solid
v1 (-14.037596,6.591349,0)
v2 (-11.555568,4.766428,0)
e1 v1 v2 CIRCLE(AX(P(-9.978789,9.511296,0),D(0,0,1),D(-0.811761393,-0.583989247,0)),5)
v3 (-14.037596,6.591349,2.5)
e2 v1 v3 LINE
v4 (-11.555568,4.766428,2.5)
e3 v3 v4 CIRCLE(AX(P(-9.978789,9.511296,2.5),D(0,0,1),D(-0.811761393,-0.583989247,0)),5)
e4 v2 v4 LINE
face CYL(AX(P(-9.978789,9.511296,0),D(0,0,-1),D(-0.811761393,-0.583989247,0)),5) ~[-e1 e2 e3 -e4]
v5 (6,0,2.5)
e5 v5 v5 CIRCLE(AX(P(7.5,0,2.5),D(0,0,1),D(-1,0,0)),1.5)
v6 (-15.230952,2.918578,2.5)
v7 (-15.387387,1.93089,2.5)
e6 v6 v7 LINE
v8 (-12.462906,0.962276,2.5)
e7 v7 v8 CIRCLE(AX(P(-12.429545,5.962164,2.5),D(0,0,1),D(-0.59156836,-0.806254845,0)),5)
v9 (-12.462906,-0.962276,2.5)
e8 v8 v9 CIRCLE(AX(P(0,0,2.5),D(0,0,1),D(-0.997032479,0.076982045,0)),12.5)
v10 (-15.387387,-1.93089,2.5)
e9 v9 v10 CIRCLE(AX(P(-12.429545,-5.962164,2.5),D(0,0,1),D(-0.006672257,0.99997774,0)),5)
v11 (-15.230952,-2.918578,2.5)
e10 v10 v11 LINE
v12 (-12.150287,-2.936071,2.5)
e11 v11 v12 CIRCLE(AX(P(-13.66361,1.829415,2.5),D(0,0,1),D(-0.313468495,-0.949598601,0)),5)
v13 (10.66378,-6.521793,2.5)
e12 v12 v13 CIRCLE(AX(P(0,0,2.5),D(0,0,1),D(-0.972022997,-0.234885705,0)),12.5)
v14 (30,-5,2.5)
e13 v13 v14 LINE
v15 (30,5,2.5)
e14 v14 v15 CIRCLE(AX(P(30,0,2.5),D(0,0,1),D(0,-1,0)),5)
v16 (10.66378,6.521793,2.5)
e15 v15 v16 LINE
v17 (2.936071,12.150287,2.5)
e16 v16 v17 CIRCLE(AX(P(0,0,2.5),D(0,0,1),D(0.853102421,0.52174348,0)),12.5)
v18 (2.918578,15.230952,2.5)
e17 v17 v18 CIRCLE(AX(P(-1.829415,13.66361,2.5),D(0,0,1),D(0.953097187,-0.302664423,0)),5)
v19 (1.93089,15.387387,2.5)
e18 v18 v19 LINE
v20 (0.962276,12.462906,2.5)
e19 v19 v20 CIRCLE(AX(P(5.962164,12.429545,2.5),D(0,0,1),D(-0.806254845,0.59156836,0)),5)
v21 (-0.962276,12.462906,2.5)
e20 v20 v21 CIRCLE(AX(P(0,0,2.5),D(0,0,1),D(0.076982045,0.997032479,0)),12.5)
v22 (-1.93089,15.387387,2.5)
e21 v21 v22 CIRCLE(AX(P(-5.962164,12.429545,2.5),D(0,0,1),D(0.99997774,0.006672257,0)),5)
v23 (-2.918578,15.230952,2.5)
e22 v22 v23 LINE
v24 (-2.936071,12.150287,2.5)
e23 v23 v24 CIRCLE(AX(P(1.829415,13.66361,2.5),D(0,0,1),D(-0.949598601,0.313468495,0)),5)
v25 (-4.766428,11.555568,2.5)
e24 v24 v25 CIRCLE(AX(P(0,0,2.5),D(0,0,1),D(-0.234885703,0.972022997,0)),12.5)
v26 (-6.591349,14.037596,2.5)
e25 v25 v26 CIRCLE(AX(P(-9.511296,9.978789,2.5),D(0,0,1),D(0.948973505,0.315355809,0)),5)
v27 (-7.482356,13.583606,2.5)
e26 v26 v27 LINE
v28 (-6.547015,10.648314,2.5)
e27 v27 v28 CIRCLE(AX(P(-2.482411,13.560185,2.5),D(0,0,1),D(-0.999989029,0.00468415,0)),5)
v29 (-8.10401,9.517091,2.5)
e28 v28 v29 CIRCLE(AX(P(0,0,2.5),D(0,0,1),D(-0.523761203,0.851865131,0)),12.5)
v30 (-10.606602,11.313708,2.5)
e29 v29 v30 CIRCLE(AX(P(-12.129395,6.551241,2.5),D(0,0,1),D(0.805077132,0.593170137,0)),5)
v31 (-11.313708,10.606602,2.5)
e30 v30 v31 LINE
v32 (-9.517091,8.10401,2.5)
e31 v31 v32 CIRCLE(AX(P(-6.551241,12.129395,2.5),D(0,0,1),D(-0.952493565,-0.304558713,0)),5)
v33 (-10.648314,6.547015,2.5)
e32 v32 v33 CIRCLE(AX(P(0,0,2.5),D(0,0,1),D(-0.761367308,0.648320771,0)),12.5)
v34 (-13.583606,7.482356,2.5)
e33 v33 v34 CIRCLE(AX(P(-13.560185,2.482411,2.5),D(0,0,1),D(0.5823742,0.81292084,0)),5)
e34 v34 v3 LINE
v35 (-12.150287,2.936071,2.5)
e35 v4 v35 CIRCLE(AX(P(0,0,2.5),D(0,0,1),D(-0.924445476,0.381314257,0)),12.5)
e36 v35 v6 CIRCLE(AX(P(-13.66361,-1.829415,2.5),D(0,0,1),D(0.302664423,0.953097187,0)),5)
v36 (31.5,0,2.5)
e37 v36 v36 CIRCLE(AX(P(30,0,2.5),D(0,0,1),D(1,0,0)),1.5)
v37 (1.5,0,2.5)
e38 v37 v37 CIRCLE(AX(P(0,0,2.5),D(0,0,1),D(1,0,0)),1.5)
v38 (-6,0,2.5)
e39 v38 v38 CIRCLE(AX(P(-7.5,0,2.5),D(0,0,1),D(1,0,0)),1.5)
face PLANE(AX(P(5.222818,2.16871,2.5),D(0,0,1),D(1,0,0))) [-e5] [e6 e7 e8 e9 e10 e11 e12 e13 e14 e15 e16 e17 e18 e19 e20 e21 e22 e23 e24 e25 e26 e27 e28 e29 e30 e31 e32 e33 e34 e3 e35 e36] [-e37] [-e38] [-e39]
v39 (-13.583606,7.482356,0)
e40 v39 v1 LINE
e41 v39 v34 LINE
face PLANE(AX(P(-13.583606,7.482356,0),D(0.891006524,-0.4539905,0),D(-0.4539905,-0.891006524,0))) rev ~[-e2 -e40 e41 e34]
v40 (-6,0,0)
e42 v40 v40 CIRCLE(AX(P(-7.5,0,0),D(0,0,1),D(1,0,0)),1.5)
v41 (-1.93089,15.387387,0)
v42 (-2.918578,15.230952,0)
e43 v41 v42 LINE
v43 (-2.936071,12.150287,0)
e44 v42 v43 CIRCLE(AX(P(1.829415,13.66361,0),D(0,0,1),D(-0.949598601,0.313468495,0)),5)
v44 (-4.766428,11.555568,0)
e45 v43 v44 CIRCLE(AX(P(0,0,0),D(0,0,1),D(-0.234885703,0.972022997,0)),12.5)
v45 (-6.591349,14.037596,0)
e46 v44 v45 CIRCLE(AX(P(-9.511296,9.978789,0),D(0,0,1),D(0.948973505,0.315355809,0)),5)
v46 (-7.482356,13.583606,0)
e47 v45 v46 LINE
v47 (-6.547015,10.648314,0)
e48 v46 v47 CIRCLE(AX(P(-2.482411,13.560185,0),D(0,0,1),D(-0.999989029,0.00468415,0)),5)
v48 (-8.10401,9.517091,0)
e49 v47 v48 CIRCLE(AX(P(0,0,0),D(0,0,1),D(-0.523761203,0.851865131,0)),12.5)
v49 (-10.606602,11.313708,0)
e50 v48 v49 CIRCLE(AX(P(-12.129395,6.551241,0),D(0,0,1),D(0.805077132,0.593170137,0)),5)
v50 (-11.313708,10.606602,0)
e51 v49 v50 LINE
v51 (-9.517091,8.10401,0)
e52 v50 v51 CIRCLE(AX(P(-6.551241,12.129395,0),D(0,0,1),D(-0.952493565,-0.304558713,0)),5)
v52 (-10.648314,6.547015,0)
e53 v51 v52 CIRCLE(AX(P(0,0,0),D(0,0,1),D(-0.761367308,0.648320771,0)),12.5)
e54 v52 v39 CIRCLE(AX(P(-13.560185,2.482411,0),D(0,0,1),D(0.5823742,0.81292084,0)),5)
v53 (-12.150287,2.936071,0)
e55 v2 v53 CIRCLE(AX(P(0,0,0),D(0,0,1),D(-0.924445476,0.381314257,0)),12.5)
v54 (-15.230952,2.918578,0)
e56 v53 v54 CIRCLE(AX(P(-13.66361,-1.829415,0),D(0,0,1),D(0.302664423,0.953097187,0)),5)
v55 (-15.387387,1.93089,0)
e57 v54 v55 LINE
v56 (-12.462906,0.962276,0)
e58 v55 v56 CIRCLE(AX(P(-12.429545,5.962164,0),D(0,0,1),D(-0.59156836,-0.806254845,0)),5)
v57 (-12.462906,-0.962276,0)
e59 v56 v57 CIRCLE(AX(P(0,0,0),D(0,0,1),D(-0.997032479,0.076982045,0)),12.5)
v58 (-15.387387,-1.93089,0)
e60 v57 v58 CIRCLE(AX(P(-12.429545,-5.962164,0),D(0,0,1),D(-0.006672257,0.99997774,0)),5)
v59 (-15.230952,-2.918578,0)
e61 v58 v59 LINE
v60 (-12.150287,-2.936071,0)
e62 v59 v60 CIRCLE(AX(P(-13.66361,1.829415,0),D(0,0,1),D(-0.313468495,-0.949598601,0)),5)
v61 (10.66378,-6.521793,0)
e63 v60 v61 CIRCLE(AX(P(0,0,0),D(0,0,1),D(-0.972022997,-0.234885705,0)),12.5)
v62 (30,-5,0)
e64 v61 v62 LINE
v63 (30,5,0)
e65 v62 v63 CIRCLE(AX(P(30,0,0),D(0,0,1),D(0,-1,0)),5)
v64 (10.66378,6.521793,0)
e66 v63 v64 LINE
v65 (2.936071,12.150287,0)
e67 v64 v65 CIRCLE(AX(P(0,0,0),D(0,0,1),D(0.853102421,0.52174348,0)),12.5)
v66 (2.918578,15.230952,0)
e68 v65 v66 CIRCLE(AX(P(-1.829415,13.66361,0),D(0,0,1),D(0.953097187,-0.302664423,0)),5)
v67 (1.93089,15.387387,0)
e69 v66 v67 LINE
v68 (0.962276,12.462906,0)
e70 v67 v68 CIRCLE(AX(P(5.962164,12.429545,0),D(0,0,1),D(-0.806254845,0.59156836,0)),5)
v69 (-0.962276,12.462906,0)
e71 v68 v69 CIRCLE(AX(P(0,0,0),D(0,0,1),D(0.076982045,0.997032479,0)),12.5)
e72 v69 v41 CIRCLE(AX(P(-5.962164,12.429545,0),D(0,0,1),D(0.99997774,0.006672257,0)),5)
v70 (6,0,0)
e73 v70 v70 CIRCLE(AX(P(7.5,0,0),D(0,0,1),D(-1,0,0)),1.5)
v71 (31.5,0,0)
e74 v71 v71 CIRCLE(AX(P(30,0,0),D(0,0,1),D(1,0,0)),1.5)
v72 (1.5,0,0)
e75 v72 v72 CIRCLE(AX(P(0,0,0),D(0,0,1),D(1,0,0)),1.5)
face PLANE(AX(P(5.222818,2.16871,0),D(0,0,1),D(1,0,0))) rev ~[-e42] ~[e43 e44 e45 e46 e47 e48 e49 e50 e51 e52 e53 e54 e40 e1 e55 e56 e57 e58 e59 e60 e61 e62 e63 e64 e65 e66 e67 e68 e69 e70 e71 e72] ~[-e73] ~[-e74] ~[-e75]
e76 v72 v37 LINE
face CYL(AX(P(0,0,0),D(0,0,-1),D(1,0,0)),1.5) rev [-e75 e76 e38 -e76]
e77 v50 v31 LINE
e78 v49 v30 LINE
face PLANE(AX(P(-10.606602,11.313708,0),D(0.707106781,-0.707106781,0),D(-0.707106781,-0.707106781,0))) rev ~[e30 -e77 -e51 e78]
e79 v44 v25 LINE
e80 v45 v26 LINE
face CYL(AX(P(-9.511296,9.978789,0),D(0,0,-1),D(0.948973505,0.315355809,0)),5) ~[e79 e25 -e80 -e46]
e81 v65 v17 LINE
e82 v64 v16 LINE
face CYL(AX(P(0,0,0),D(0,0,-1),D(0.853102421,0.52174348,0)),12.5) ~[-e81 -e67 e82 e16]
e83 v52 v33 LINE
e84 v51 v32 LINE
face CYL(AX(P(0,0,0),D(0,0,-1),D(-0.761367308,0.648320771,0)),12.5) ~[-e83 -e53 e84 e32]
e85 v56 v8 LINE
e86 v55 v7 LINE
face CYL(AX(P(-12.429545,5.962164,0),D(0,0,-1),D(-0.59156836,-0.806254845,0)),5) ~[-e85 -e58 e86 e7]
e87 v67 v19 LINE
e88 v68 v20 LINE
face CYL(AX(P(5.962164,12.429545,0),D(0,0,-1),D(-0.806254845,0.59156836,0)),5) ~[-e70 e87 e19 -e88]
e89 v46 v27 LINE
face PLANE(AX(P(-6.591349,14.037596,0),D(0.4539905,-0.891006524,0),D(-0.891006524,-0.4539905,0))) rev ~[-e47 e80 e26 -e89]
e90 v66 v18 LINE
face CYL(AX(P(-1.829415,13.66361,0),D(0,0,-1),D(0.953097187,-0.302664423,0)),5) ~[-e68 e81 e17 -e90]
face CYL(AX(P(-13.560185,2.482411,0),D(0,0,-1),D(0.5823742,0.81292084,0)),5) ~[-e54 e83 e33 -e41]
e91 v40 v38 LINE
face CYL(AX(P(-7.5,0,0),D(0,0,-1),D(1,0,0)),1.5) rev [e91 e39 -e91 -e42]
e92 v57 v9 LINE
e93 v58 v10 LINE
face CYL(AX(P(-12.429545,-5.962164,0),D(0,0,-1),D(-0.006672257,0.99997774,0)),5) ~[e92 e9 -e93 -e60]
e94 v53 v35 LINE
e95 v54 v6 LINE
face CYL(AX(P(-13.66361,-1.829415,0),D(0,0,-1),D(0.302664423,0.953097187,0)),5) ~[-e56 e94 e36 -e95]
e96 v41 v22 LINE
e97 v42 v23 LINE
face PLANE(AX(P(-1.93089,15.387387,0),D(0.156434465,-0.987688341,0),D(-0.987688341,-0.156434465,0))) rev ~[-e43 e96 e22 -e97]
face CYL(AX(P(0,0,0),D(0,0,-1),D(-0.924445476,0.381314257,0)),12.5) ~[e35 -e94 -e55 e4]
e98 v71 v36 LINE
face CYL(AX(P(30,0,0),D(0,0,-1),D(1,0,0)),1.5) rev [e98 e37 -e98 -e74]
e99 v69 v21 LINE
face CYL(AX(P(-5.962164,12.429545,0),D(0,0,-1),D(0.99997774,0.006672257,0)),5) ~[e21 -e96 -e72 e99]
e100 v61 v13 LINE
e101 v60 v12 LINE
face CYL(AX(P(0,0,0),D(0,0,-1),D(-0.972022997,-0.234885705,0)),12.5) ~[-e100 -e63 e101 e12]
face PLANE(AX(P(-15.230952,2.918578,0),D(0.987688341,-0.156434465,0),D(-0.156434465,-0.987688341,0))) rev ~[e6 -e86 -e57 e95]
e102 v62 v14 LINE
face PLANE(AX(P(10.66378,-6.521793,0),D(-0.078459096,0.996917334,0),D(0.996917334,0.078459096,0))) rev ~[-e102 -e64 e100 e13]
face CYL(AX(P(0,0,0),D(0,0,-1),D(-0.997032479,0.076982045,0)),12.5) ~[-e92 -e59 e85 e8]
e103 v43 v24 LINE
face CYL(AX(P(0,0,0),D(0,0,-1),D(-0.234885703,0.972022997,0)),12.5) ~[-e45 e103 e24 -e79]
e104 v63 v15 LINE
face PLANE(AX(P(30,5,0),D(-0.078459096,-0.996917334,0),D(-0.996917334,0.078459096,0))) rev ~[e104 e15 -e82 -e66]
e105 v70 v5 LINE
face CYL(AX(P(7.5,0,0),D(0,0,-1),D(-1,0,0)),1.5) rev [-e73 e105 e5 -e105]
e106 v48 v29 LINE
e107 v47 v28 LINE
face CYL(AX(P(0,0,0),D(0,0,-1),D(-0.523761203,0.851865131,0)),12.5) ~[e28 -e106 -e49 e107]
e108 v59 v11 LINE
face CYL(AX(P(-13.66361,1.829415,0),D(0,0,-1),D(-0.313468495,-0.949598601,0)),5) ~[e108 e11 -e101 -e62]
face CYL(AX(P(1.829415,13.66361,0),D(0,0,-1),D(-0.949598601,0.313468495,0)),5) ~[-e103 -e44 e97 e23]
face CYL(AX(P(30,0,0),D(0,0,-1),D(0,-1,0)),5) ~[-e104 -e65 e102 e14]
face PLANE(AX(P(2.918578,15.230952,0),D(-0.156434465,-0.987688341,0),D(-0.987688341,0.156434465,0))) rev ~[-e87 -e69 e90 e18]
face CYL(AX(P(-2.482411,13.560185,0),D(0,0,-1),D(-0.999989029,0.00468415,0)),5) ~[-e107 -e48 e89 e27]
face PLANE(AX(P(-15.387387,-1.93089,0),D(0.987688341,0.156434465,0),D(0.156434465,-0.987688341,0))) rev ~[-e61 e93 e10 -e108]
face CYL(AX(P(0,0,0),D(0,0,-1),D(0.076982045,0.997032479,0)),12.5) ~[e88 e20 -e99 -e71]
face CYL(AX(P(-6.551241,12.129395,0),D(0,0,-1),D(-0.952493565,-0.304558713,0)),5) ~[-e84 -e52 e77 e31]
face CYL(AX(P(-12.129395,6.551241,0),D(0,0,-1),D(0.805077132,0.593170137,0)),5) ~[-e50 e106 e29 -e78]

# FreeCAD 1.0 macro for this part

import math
import FreeCAD as App
import Part
import Sketcher
from FreeCAD import Vector
Q = App.Units.Quantity

doc = App.newDocument("Part")
body = doc.addObject("PartDesign::Body", "Body")

# Sketch on XY plane
sketch1 = body.newObject("Sketcher::SketchObject", "Sketch")
sketch1.AttachmentSupport = (doc.getObject("XY_Plane"), [""])
sketch1.MapMode = "FlatFace"
sketch1.addGeometry([
    Part.LineSegment(Vector(30, 5, 0), Vector(10.7, 6.5, 0)),  # 0
    Part.ArcOfCircle(Part.Circle(Vector(0, 0, 0), Vector(0, 0, 1), 12.5), math.radians(31), math.radians(76)),  # 1
    Part.ArcOfCircle(Part.Circle(Vector(-1.8, 13.7, 0), Vector(0, 0, 1), 5), math.radians(-18), math.radians(18)),  # 2
    Part.LineSegment(Vector(2.9, 15.2, 0), Vector(1.9, 15.4, 0)),  # 3
    Part.ArcOfCircle(Part.Circle(Vector(6, 12.4, 0), Vector(0, 0, 1), 5), math.radians(144), math.radians(180)),  # 4
    Part.ArcOfCircle(Part.Circle(Vector(0, 0, 0), Vector(0, 0, 1), 12.5), math.radians(85.58), math.radians(94.42)),  # 5
    Part.ArcOfCircle(Part.Circle(Vector(-6, 12.4, 0), Vector(0, 0, 1), 5), math.radians(0), math.radians(36)),  # 6
    Part.LineSegment(Vector(-1.9, 15.4, 0), Vector(-2.9, 15.2, 0)),  # 7
    Part.ArcOfCircle(Part.Circle(Vector(1.8, 13.7, 0), Vector(0, 0, 1), 5), math.radians(162), math.radians(198)),  # 8
    Part.ArcOfCircle(Part.Circle(Vector(0, 0, 0), Vector(0, 0, 1), 12.5), math.radians(103.58), math.radians(112.42)),  # 9
    Part.ArcOfCircle(Part.Circle(Vector(-9.5, 10, 0), Vector(0, 0, 1), 5), math.radians(18), math.radians(54)),  # 10
    Part.LineSegment(Vector(-6.6, 14, 0), Vector(-7.5, 13.6, 0)),  # 11
    Part.ArcOfCircle(Part.Circle(Vector(-2.5, 13.6, 0), Vector(0, 0, 1), 5), math.radians(180), math.radians(216)),  # 12
    Part.ArcOfCircle(Part.Circle(Vector(0, 0, 0), Vector(0, 0, 1), 12.5), math.radians(121.58), math.radians(130.42)),  # 13
    Part.ArcOfCircle(Part.Circle(Vector(-12.1, 6.6, 0), Vector(0, 0, 1), 5), math.radians(36), math.radians(72)),  # 14
    Part.LineSegment(Vector(-10.6, 11.3, 0), Vector(-11.3, 10.6, 0)),  # 15
    Part.ArcOfCircle(Part.Circle(Vector(-6.6, 12.1, 0), Vector(0, 0, 1), 5), math.radians(-162), math.radians(-126)),  # 16
    Part.ArcOfCircle(Part.Circle(Vector(0, 0, 0), Vector(0, 0, 1), 12.5), math.radians(139.58), math.radians(148.42)),  # 17
    Part.ArcOfCircle(Part.Circle(Vector(-13.6, 2.5, 0), Vector(0, 0, 1), 5), math.radians(54), math.radians(90)),  # 18
    Part.LineSegment(Vector(-13.6, 7.5, 0), Vector(-14, 6.6, 0)),  # 19
    Part.ArcOfCircle(Part.Circle(Vector(-10, 9.5, 0), Vector(0, 0, 1), 5), math.radians(-144), math.radians(-108)),  # 20
    Part.ArcOfCircle(Part.Circle(Vector(0, 0, 0), Vector(0, 0, 1), 12.5), math.radians(157.58), math.radians(166.42)),  # 21
    Part.ArcOfCircle(Part.Circle(Vector(-13.7, -1.8, 0), Vector(0, 0, 1), 5), math.radians(72), math.radians(108)),  # 22
    Part.LineSegment(Vector(-15.2, 2.9, 0), Vector(-15.4, 1.9, 0)),  # 23
    Part.ArcOfCircle(Part.Circle(Vector(-12.4, 6, 0), Vector(0, 0, 1), 5), math.radians(-126), math.radians(-90)),  # 24
    Part.ArcOfCircle(Part.Circle(Vector(0, 0, 0), Vector(0, 0, 1), 12.5), math.radians(175.58), math.radians(184.42)),  # 25
    Part.ArcOfCircle(Part.Circle(Vector(-12.4, -6, 0), Vector(0, 0, 1), 5), math.radians(90), math.radians(126)),  # 26
    Part.LineSegment(Vector(-15.4, -1.9, 0), Vector(-15.2, -2.9, 0)),  # 27
    Part.ArcOfCircle(Part.Circle(Vector(-13.7, 1.8, 0), Vector(0, 0, 1), 5), math.radians(-108), math.radians(-72)),  # 28
    Part.ArcOfCircle(Part.Circle(Vector(0, 0, 0), Vector(0, 0, 1), 12.5), math.radians(-166), math.radians(-31)),  # 29
    Part.LineSegment(Vector(10.7, -6.5, 0), Vector(30, -5, 0)),  # 30
    Part.ArcOfCircle(Part.Circle(Vector(30, 0, 0), Vector(0, 0, 1), 5), math.radians(-90), math.radians(90)),  # 31
    Part.Circle(Vector(-7.5, 0, 0), Vector(0, 0, 1), 1.5),  # 32
    Part.Circle(Vector(0, 0, 0), Vector(0, 0, 1), 1.5),  # 33
    Part.Circle(Vector(7.5, 0, 0), Vector(0, 0, 1), 1.5),  # 34
    Part.Circle(Vector(30, 0, 0), Vector(0, 0, 1), 1.5),  # 35
], False)
sketch1.addConstraint([
    Sketcher.Constraint("Coincident", 0, 2, 1, 1),
    Sketcher.Constraint("Coincident", 1, 2, 2, 1),
    Sketcher.Constraint("Coincident", 2, 2, 3, 1),
    Sketcher.Constraint("Coincident", 3, 2, 4, 1),
    Sketcher.Constraint("Coincident", 4, 2, 5, 1),
    Sketcher.Constraint("Coincident", 5, 2, 6, 1),
    Sketcher.Constraint("Coincident", 6, 2, 7, 1),
    Sketcher.Constraint("Coincident", 7, 2, 8, 1),
    Sketcher.Constraint("Coincident", 8, 2, 9, 1),
    Sketcher.Constraint("Coincident", 9, 2, 10, 1),
    Sketcher.Constraint("Coincident", 10, 2, 11, 1),
    Sketcher.Constraint("Coincident", 11, 2, 12, 1),
    Sketcher.Constraint("Coincident", 12, 2, 13, 1),
    Sketcher.Constraint("Coincident", 13, 2, 14, 1),
    Sketcher.Constraint("Coincident", 14, 2, 15, 1),
    Sketcher.Constraint("Coincident", 15, 2, 16, 1),
    Sketcher.Constraint("Coincident", 16, 2, 17, 1),
    Sketcher.Constraint("Coincident", 17, 2, 18, 1),
    Sketcher.Constraint("Coincident", 18, 2, 19, 1),
    Sketcher.Constraint("Coincident", 19, 2, 20, 1),
    Sketcher.Constraint("Coincident", 20, 2, 21, 1),
    Sketcher.Constraint("Coincident", 21, 2, 22, 1),
    Sketcher.Constraint("Coincident", 22, 2, 23, 1),
    Sketcher.Constraint("Coincident", 23, 2, 24, 1),
    Sketcher.Constraint("Coincident", 24, 2, 25, 1),
    Sketcher.Constraint("Coincident", 25, 2, 26, 1),
    Sketcher.Constraint("Coincident", 26, 2, 27, 1),
    Sketcher.Constraint("Coincident", 27, 2, 28, 1),
    Sketcher.Constraint("Coincident", 28, 2, 29, 1),
    Sketcher.Constraint("Coincident", 29, 2, 30, 1),
    Sketcher.Constraint("Coincident", 30, 2, 31, 1),
    Sketcher.Constraint("Coincident", 31, 2, 0, 1),
    Sketcher.Constraint("Coincident", 1, 3, -1, 1),
    Sketcher.Constraint("Coincident", 5, 3, -1, 1),
    Sketcher.Constraint("Coincident", 9, 3, -1, 1),
    Sketcher.Constraint("Coincident", 13, 3, -1, 1),
    Sketcher.Constraint("Coincident", 17, 3, -1, 1),
    Sketcher.Constraint("Coincident", 21, 3, -1, 1),
    Sketcher.Constraint("Coincident", 25, 3, -1, 1),
    Sketcher.Constraint("Coincident", 29, 3, -1, 1),
    Sketcher.Constraint("Coincident", 33, 3, -1, 1),
    Sketcher.Constraint("Coincident", 35, 3, 31, 3),
    Sketcher.Constraint("Equal", 2, 4),
    Sketcher.Constraint("Equal", 1, 5),
    Sketcher.Constraint("Equal", 4, 6),
    Sketcher.Constraint("Equal", 6, 8),
    Sketcher.Constraint("Equal", 5, 9),
    Sketcher.Constraint("Equal", 8, 10),
    Sketcher.Constraint("Equal", 10, 12),
    Sketcher.Constraint("Equal", 9, 13),
    Sketcher.Constraint("Equal", 12, 14),
    Sketcher.Constraint("Equal", 14, 16),
    Sketcher.Constraint("Equal", 13, 17),
    Sketcher.Constraint("Equal", 16, 18),
    Sketcher.Constraint("Equal", 18, 20),
    Sketcher.Constraint("Equal", 17, 21),
    Sketcher.Constraint("Equal", 20, 22),
    Sketcher.Constraint("Equal", 22, 24),
    Sketcher.Constraint("Equal", 21, 25),
    Sketcher.Constraint("Equal", 24, 26),
    Sketcher.Constraint("Equal", 26, 28),
    Sketcher.Constraint("Equal", 25, 29),
    Sketcher.Constraint("Equal", 28, 31),
    Sketcher.Constraint("Equal", 32, 33),
    Sketcher.Constraint("Equal", 33, 34),
    Sketcher.Constraint("Equal", 34, 35),
    Sketcher.Constraint("Symmetric", 32, 3, 34, 3, -1, 1),
    Sketcher.Constraint("Symmetric", 4, 3, 6, 3, -2),
    Sketcher.Constraint("Symmetric", 2, 3, 8, 3, -2),
    Sketcher.Constraint("Symmetric", 24, 3, 26, 3, -1),
    Sketcher.Constraint("Symmetric", 22, 3, 28, 3, -1),
    Sketcher.Constraint("Symmetric", 30, 2, 31, 2, -1),
    Sketcher.Constraint("PointOnObject", 32, 3, -1),
    Sketcher.Constraint("Perpendicular", 3, 23),
    Sketcher.Constraint("Perpendicular", 7, 27),
    Sketcher.Constraint("Horizontal", 3, 2, 6, 2),
    Sketcher.Constraint("Horizontal", 2, 2, 7, 2),
    Sketcher.Constraint("Vertical", 23, 2, 26, 2),
    Sketcher.Constraint("Vertical", 0, 2, 29, 2),
    Sketcher.Constraint("Vertical", 35, 3, 30, 2),
    Sketcher.Constraint("Equal", 7, 11),
    Sketcher.Constraint("Equal", 11, 15),
    Sketcher.Constraint("Equal", 15, 19),
    Sketcher.Constraint("Equal", 19, 23),
    Sketcher.Constraint("Diameter", 32, Q("3 mm")),
    Sketcher.Constraint("Radius", 2, Q("5 mm")),
    Sketcher.Constraint("Radius", 1, Q("12.5 mm")),
    Sketcher.Constraint("Angle", 3, Q("171 deg")),
    Sketcher.Constraint("Angle", 11, Q("-153 deg")),
    Sketcher.Constraint("Angle", 15, Q("-135 deg")),
    Sketcher.Constraint("Angle", 19, Q("-117 deg")),
    Sketcher.Constraint("Distance", 3, Q("1 mm")),
    Sketcher.Constraint("DistanceX", -1, 1, 31, 3, Q("30 mm")),
    Sketcher.Constraint("Angle", 0, Q("175.5 deg")),
    Sketcher.Constraint("DistanceX", 32, 3, -1, 1, Q("7.5 mm")),
    Sketcher.Constraint("DistanceX", 14, 2, -1, 1, Q("10.606602 mm")),
    Sketcher.Constraint("DistanceY", -1, 1, 15, 2, Q("10.606602 mm")),
    Sketcher.Constraint("DistanceX", 14, 3, 10, 3, Q("2.6181 mm")),
    Sketcher.Constraint("DistanceY", 20, 3, 16, 3, Q("2.6181 mm")),
    Sketcher.Constraint("DistanceY", 1, 2, 3, 2, Q("3.237099 mm")),
    Sketcher.Constraint("DistanceX", 12, 3, 3, 2, Q("4.413301 mm")),
    Sketcher.Constraint("DistanceY", 12, 3, 3, 2, Q("1.827201 mm")),
    Sketcher.Constraint("DistanceY", 16, 3, 10, 2, Q("1.908201 mm")),
    Sketcher.Constraint("DistanceY", 13, 2, 10, 3, Q("0.461698 mm")),
    Sketcher.Constraint("DistanceX", 15, 2, 13, 2, Q("3.209699 mm")),
    Sketcher.Constraint("DistanceX", 20, 3, 16, 2, Q("0.461698 mm")),
    Sketcher.Constraint("DistanceX", 19, 2, 14, 3, Q("1.908201 mm")),
    Sketcher.Constraint("DistanceX", 23, 2, 18, 3, Q("1.827201 mm")),
    Sketcher.Constraint("DistanceX", 23, 2, 21, 2, Q("3.237099 mm")),
    Sketcher.Constraint("DistanceY", -1, 1, 2, 3, Q("13.66361 mm")),
    Sketcher.Constraint("DistanceX", 12, 3, -1, 1, Q("2.482411 mm")),
    Sketcher.Constraint("DistanceX", 22, 3, -1, 1, Q("13.66361 mm")),
    Sketcher.Constraint("DistanceY", -1, 1, 21, 2, Q("2.936071 mm")),
    Sketcher.Constraint("DistanceX", 2, 3, 4, 3, Q("7.791579 mm")),
    Sketcher.Constraint("DistanceX", 24, 3, 14, 3, Q("0.300149 mm")),
])
pad1 = body.newObject("PartDesign::Pad", "Pad")
pad1.Profile = sketch1
pad1.Length = 2.5

doc.recompute()
